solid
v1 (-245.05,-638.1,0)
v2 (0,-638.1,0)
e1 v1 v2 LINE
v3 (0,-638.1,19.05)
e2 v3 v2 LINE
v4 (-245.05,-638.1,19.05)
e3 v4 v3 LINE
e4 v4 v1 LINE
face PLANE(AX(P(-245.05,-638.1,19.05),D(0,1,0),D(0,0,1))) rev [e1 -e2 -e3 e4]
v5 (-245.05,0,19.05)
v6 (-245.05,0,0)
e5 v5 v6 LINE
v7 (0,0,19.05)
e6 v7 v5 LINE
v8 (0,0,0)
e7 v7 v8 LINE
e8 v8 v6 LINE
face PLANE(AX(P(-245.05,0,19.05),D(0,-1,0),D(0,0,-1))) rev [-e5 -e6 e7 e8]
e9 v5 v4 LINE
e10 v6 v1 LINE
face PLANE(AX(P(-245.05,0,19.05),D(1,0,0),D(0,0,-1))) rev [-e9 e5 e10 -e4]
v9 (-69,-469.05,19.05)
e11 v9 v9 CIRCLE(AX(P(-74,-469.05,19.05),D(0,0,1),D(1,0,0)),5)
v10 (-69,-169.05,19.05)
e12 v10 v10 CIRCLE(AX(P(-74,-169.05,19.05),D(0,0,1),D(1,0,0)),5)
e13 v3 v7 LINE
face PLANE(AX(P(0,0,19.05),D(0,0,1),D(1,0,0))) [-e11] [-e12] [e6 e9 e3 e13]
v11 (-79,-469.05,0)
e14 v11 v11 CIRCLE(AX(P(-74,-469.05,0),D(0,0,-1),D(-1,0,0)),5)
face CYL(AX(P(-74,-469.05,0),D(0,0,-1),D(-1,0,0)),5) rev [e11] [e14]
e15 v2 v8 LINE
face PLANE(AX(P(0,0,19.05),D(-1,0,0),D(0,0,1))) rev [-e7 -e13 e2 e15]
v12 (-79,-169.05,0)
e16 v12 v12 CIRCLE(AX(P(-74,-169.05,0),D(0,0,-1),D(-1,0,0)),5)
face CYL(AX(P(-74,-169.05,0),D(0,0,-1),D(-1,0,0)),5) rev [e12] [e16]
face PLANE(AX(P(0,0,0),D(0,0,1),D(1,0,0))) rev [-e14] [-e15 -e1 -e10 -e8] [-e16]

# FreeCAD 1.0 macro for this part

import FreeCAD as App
import Part
import Sketcher
from FreeCAD import Vector


def add_polygon(sketch, points):
    """Adds a closed chain of lines whose ends are joined by coincident constraints."""
    first, n = sketch.GeometryCount, len(points)
    for a, b in zip(points, points[1:] + points[:1]):
        sketch.addGeometry(Part.LineSegment(App.Vector(*a, 0), App.Vector(*b, 0)), False)
    for i in range(n):
        sketch.addConstraint(Sketcher.Constraint("Coincident", first + i, 2, first + (i + 1) % n, 1))

doc = App.newDocument("Part")
body = doc.addObject("PartDesign::Body", "Body")

# Sketch on XY plane
sketch1 = doc.addObject("Sketcher::SketchObject", "Sketch")
body.addObject(sketch1)
sketch1.AttachmentSupport = (doc.XY_Plane, [""])
sketch1.MapMode = "FlatFace"
add_polygon(sketch1, [(-245, 0), (-245, -638), (0, -638), (0, 0)])  # lines 0-3
sketch1.addConstraint([
    Sketcher.Constraint("Vertical", 0),
    Sketcher.Constraint("Horizontal", 1),
    Sketcher.Constraint("Vertical", 2),
    Sketcher.Constraint("Horizontal", 3),
    Sketcher.Constraint("Coincident", 2, 2, -1, 1),
    Sketcher.Constraint("DistanceY", 0, 2, 0, 1, 638.1),
    Sketcher.Constraint("DistanceX", 1, 1, 1, 2, 245.05),
])
pad1 = doc.addObject("PartDesign::Pad", "Pad")
body.addObject(pad1)
pad1.Profile = sketch1
pad1.Length = 19.05

# Sketch on XY plane
sketch2 = doc.addObject("Sketcher::SketchObject", "Sketch001")
body.addObject(sketch2)
sketch2.AttachmentSupport = (doc.XY_Plane, [""])
sketch2.MapMode = "FlatFace"
sketch2.addGeometry([
    Part.Circle(Vector(-74, -469, 0), Vector(0, 0, 1), 5),
    Part.Circle(Vector(-74, -169, 0), Vector(0, 0, 1), 5),
], False)
sketch2.addConstraint([
    Sketcher.Constraint("Equal", 0, 1),
    Sketcher.Constraint("Vertical", 0, 3, 1, 3),
    Sketcher.Constraint("Diameter", 0, 10.0),
    Sketcher.Constraint("DistanceX", 0, 3, -1, 1, 74.0),
    Sketcher.Constraint("DistanceY", 0, 3, 1, 3, 300.0),
    Sketcher.Constraint("DistanceY", 0, 3, -1, 1, 469.05),
])
doc.recompute()
hole = doc.addObject("PartDesign::Hole", "Hole")
body.addObject(hole)
hole.Profile = sketch2
hole.ThreadType = "None"
hole.Diameter = 10
hole.DepthType = "Dimension"
hole.Depth = 26.995697
hole.DrillPoint = "Angled"
hole.DrillPointAngle = 118
hole.Reversed = True

doc.recompute()
